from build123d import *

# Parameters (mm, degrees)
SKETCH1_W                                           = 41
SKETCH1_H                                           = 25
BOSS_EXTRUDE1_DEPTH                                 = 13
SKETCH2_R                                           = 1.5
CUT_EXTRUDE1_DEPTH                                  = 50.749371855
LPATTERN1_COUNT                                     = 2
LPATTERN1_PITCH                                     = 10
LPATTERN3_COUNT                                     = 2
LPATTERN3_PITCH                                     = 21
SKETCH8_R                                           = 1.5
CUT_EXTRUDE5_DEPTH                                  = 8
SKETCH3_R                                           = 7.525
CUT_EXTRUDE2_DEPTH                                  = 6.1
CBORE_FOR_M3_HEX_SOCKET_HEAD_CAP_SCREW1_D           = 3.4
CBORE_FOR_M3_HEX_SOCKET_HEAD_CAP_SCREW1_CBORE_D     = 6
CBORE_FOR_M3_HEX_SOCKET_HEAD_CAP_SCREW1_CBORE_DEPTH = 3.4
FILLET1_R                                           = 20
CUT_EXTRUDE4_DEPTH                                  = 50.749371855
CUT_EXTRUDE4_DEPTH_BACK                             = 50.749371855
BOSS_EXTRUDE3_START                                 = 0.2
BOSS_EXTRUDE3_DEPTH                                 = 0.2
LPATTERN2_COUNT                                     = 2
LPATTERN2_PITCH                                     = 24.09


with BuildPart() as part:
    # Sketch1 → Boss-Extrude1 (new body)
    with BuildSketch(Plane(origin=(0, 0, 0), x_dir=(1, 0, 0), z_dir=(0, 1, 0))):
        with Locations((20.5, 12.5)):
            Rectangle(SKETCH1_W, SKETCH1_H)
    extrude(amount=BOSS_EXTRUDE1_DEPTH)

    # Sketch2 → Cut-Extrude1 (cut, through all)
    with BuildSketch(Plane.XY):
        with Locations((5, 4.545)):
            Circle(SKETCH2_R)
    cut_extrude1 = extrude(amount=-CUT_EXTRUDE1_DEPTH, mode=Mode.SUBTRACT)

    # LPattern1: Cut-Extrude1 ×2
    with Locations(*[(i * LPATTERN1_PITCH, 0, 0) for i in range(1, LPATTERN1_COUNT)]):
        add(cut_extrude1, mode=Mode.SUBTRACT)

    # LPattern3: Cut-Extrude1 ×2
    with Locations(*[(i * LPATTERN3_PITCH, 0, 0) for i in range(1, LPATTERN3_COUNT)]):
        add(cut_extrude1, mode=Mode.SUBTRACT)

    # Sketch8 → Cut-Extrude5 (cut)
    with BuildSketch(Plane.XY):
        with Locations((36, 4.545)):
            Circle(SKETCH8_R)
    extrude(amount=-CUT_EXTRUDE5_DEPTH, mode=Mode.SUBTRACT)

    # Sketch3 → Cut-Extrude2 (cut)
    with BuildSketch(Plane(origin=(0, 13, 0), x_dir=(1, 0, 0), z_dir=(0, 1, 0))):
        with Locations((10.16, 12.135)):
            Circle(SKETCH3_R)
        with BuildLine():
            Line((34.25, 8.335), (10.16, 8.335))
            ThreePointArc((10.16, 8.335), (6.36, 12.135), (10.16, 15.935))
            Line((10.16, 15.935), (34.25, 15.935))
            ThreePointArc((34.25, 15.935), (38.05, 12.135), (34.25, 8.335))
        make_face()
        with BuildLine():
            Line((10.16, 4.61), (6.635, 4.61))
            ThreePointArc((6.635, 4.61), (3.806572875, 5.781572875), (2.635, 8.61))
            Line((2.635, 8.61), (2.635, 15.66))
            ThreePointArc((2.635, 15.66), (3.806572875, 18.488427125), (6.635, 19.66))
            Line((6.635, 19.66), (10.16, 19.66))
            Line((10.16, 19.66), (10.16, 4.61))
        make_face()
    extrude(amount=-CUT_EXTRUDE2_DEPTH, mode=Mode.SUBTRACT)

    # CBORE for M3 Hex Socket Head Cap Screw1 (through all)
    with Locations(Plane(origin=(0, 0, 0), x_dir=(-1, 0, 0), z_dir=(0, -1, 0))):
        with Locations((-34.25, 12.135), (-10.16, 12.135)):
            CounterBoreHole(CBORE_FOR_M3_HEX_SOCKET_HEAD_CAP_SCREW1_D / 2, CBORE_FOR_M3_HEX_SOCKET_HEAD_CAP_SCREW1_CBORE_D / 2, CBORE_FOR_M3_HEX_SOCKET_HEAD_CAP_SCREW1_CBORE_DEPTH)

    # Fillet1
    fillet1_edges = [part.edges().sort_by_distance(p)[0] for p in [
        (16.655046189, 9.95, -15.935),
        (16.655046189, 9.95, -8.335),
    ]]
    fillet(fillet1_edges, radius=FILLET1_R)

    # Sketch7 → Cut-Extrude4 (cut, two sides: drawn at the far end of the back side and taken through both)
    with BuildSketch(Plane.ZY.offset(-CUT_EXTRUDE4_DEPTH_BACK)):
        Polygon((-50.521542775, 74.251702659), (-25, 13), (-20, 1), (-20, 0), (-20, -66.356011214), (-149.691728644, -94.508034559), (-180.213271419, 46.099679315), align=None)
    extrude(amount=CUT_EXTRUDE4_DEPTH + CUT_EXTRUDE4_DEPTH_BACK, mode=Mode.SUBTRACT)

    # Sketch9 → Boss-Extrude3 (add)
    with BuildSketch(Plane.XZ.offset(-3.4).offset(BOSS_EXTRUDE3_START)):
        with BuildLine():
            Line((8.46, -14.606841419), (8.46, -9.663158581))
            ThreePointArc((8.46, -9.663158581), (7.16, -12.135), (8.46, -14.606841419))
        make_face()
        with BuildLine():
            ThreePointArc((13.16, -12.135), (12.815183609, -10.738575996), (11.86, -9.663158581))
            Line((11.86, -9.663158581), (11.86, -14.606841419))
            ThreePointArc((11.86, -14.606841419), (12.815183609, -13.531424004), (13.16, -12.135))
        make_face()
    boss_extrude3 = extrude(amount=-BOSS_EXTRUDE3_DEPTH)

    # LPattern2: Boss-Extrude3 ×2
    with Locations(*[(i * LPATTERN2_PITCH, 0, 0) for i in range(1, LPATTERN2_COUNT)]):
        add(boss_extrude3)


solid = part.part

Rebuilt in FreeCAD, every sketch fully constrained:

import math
import FreeCAD as App
import Part
import Sketcher

V = App.Vector
Q = App.Units.Quantity


def edges_at(feature, points):
    """Names of the edges that pass closest to the given points."""
    edges = feature.Shape.Edges
    near = lambda p: min(range(len(edges)), key=lambda i: edges[i].distToShape(Part.Vertex(*p))[0])
    return sorted({f"Edge{near(p) + 1}" for p in points})


def add_polygon(sketch, points):
    """Adds a closed chain of lines whose ends are joined by coincident constraints."""
    first, n = sketch.GeometryCount, len(points)
    for a, b in zip(points, points[1:] + points[:1]):
        sketch.addGeometry(Part.LineSegment(App.Vector(*a, 0), App.Vector(*b, 0)), False)
    for i in range(n):
        sketch.addConstraint(Sketcher.Constraint("Coincident", first + i, 2, first + (i + 1) % n, 1))

doc = App.newDocument("Part")
body = doc.addObject("PartDesign::Body", "Body")

# Sketch on XZ plane
sketch1 = body.newObject("Sketcher::SketchObject", "Sketch")
sketch1.AttachmentSupport = (doc.getObject("XZ_Plane"), [""])
sketch1.MapMode = "FlatFace"
add_polygon(sketch1, [(0, -25), (0, 0), (41, 0), (41, -25)])  # lines 0-3
sketch1.addConstraint([
    Sketcher.Constraint("Vertical", 0),
    Sketcher.Constraint("Horizontal", 1),
    Sketcher.Constraint("Vertical", 2),
    Sketcher.Constraint("Horizontal", 3),
    Sketcher.Constraint("Coincident", 0, 2, -1, 1),
    Sketcher.Constraint("DistanceX", 1, 1, 1, 2, Q("41 mm")),
    Sketcher.Constraint("DistanceY", 0, 1, 0, 2, Q("25 mm")),
])
pad1 = body.newObject("PartDesign::Pad", "Pad")
pad1.Profile = sketch1
pad1.Length = 13
pad1.Reversed = True

# Sketch on XY plane
sketch2 = body.newObject("Sketcher::SketchObject", "Sketch001")
sketch2.AttachmentSupport = (doc.getObject("XY_Plane"), [""])
sketch2.MapMode = "FlatFace"
sketch2.addGeometry(Part.Circle(V(5, 4.5, 0), V(0, 0, 1), 1.5), False)
sketch2.addConstraint([
    Sketcher.Constraint("Diameter", 0, Q("3 mm")),
    Sketcher.Constraint("DistanceX", -1, 1, 0, 3, Q("5 mm")),
    Sketcher.Constraint("DistanceY", -1, 1, 0, 3, Q("4.545 mm")),
])
pocket1 = body.newObject("PartDesign::Pocket", "Pocket")
pocket1.Profile = sketch2
pocket1.Type = "ThroughAll"
doc.recompute()

linearpattern = body.newObject("PartDesign::LinearPattern", "LinearPattern")
linearpattern.Originals = [pocket1]
linearpattern.Direction = (doc.getObject("X_Axis"), [""])
linearpattern.Mode = "offset"
linearpattern.Offset = 10
linearpattern.Occurrences = 2
body.Tip = linearpattern
doc.recompute()

linearpattern2 = body.newObject("PartDesign::LinearPattern", "LinearPattern001")
linearpattern2.Originals = [pocket1]
linearpattern2.Direction = (doc.getObject("X_Axis"), [""])
linearpattern2.Mode = "offset"
linearpattern2.Offset = 21
linearpattern2.Occurrences = 2
body.Tip = linearpattern2

# Sketch on XY plane
sketch3 = body.newObject("Sketcher::SketchObject", "Sketch002")
sketch3.AttachmentSupport = (doc.getObject("XY_Plane"), [""])
sketch3.MapMode = "FlatFace"
sketch3.addGeometry(Part.Circle(V(36, 4.5, 0), V(0, 0, 1), 1.5), False)
sketch3.addConstraint([
    Sketcher.Constraint("Diameter", 0, Q("3 mm")),
    Sketcher.Constraint("DistanceX", -1, 1, 0, 3, Q("36 mm")),
    Sketcher.Constraint("DistanceY", -1, 1, 0, 3, Q("4.545 mm")),
])
pocket2 = body.newObject("PartDesign::Pocket", "Pocket001")
pocket2.Profile = sketch3
pocket2.Length = 8

# Sketch on XZ plane
sketch4 = body.newObject("Sketcher::SketchObject", "Sketch003")
sketch4.AttachmentSupport = (doc.getObject("XZ_Plane"), [""])
sketch4.MapMode = "FlatFace"
sketch4.AttachmentOffset = App.Placement(V(0, 0, -13), App.Rotation())
sketch4.addGeometry([
    Part.ArcOfCircle(Part.Circle(V(34.2, -12.1, 0), V(0, 0, 1), 3.8), math.radians(-90), math.radians(90)),  # 0
    Part.LineSegment(V(34.2, -15.9, 0), V(16.7, -15.9, 0)),  # 1
    Part.ArcOfCircle(Part.Circle(V(10.2, -12.1, 0), V(0, 0, 1), 7.5), math.radians(-90), math.radians(-30)),  # 2
    Part.LineSegment(V(10.2, -19.7, 0), V(6.6, -19.7, 0)),  # 3
    Part.ArcOfCircle(Part.Circle(V(6.6, -15.7, 0), V(0, 0, 1), 4), math.radians(180), math.radians(270)),  # 4
    Part.LineSegment(V(2.6, -15.7, 0), V(2.6, -8.6, 0)),  # 5
    Part.ArcOfCircle(Part.Circle(V(6.6, -8.6, 0), V(0, 0, 1), 4), math.radians(90), math.radians(180)),  # 6
    Part.LineSegment(V(6.6, -4.6, 0), V(10.2, -4.6, 0)),  # 7
    Part.ArcOfCircle(Part.Circle(V(10.2, -12.1, 0), V(0, 0, 1), 7.5), math.radians(30), math.radians(90)),  # 8
    Part.LineSegment(V(16.7, -8.3, 0), V(34.2, -8.3, 0)),  # 9
], False)
sketch4.addConstraint([
    Sketcher.Constraint("Tangent", 0, 1, 1, 1),
    Sketcher.Constraint("Coincident", 1, 2, 2, 2),
    Sketcher.Constraint("Tangent", 2, 1, 3, 1),
    Sketcher.Constraint("Tangent", 3, 2, 4, 2),
    Sketcher.Constraint("Tangent", 4, 1, 5, 1),
    Sketcher.Constraint("Tangent", 5, 2, 6, 2),
    Sketcher.Constraint("Tangent", 6, 1, 7, 1),
    Sketcher.Constraint("Tangent", 7, 2, 8, 2),
    Sketcher.Constraint("Coincident", 8, 1, 9, 1),
    Sketcher.Constraint("Tangent", 9, 2, 0, 2),
    Sketcher.Constraint("Horizontal", 1),
    Sketcher.Constraint("Horizontal", 3),
    Sketcher.Constraint("Vertical", 5),
    Sketcher.Constraint("Horizontal", 7),
    Sketcher.Constraint("Horizontal", 9),
    Sketcher.Constraint("Coincident", 8, 3, 2, 3),
    Sketcher.Constraint("Equal", 4, 6),
    Sketcher.Constraint("Equal", 2, 8),
    Sketcher.Constraint("Horizontal", 0, 3, 2, 3),
    Sketcher.Constraint("Radius", 4, Q("4 mm")),
    Sketcher.Constraint("Radius", 0, Q("3.8 mm")),
    Sketcher.Constraint("Radius", 2, Q("7.525 mm")),
    Sketcher.Constraint("DistanceX", 3, 2, 3, 1, Q("3.525 mm")),
    Sketcher.Constraint("DistanceX", -1, 1, 0, 3, Q("34.25 mm")),
    Sketcher.Constraint("DistanceX", -1, 1, 2, 3, Q("10.16 mm")),
    Sketcher.Constraint("DistanceY", 4, 3, -1, 1, Q("15.66 mm")),
])
pocket3 = body.newObject("PartDesign::Pocket", "Pocket002")
pocket3.Profile = sketch4
pocket3.Length = 6.1
pocket3.Reversed = True

# Sketch on XZ plane
sketch5 = body.newObject("Sketcher::SketchObject", "Sketch004")
sketch5.AttachmentSupport = (doc.getObject("XZ_Plane"), [""])
sketch5.MapMode = "FlatFace"
sketch5.addGeometry([
    Part.Circle(V(34.2, -12.1, 0), V(0, 0, 1), 1.7),
    Part.Circle(V(10.2, -12.1, 0), V(0, 0, 1), 1.7),
], False)
sketch5.addConstraint([
    Sketcher.Constraint("Equal", 0, 1),
    Sketcher.Constraint("Horizontal", 0, 3, 1, 3),
    Sketcher.Constraint("Diameter", 0, Q("3.4 mm")),
    Sketcher.Constraint("DistanceX", -1, 1, 0, 3, Q("34.25 mm")),
    Sketcher.Constraint("DistanceX", -1, 1, 1, 3, Q("10.16 mm")),
    Sketcher.Constraint("DistanceY", 0, 3, -1, 1, Q("12.135 mm")),
])
doc.recompute()
hole = body.newObject("PartDesign::Hole", "Hole")
hole.Profile = sketch5
hole.ThreadType = "None"
hole.Diameter = 3.4
hole.DepthType = "ThroughAll"
hole.HoleCutType = "Counterbore"
hole.HoleCutDiameter = 6
hole.HoleCutDepth = 3.4
doc.recompute()

fillet = body.newObject("PartDesign::Fillet", "Fillet")
fillet.Base = (hole, edges_at(hole, [(16.655, 9.95, -15.935), (16.655, 9.95, -8.335)]))
fillet.Radius = 20

# Sketch on YZ plane
sketch6 = body.newObject("Sketcher::SketchObject", "Sketch005")
sketch6.AttachmentSupport = (doc.getObject("YZ_Plane"), [""])
sketch6.MapMode = "FlatFace"
add_polygon(sketch6, [(13, -25), (74, -51), (46, -180), (-95, -150), (-66, -20), (1, -20)])  # lines 0-5
sketch6.addConstraint([
    Sketcher.Constraint("Horizontal", 4),
    Sketcher.Constraint("Perpendicular", 1, 2),
    Sketcher.Constraint("Perpendicular", 2, 3),
    Sketcher.Constraint("Parallel", 0, 5),
    Sketcher.Constraint("Equal", 1, 3),
    Sketcher.Constraint("Distance", 5, Q("13 mm")),
    Sketcher.Constraint("DistanceY", 3, 2, -1, 1, Q("20 mm")),
    Sketcher.Constraint("DistanceX", -1, 1, 4, 2, Q("1 mm")),
    Sketcher.Constraint("DistanceX", -1, 1, 5, 2, Q("13 mm")),
    Sketcher.Constraint("DistanceX", 4, 1, 4, 2, Q("67.356011 mm")),
    Sketcher.Constraint("Distance", 0, Q("66.356011 mm")),
    Sketcher.Constraint("DistanceX", -1, 1, 1, 2, Q("46.099679 mm")),
])
pocket4 = body.newObject("PartDesign::Pocket", "Pocket003")
pocket4.Profile = sketch6
pocket4.Type = "ThroughAll"
pocket4.Midplane = True

# Sketch on XZ plane
sketch7 = body.newObject("Sketcher::SketchObject", "Sketch006")
sketch7.AttachmentSupport = (doc.getObject("XZ_Plane"), [""])
sketch7.MapMode = "FlatFace"
sketch7.AttachmentOffset = App.Placement(V(0, 0, -3.2), App.Rotation())
sketch7.addGeometry([
    Part.LineSegment(V(8.5, -14.6, 0), V(8.5, -9.7, 0)),  # 0
    Part.ArcOfCircle(Part.Circle(V(10.2, -12.1, 0), V(0, 0, 1), 3), math.radians(125), math.radians(235)),  # 1
    Part.ArcOfCircle(Part.Circle(V(10.2, -12.1, 0), V(0, 0, 1), 3), math.radians(0), math.radians(55)),  # 2
    Part.LineSegment(V(11.9, -9.7, 0), V(11.9, -14.6, 0)),  # 3
    Part.ArcOfCircle(Part.Circle(V(10.2, -12.1, 0), V(0, 0, 1), 3), math.radians(-55), math.radians(0)),  # 4
], False)
sketch7.addConstraint([
    Sketcher.Constraint("Coincident", 0, 1, 1, 2),
    Sketcher.Constraint("Coincident", 1, 1, 0, 2),
    Sketcher.Constraint("Coincident", 2, 2, 3, 1),
    Sketcher.Constraint("Coincident", 3, 2, 4, 1),
    Sketcher.Constraint("Tangent", 4, 2, 2, 1),
    Sketcher.Constraint("Vertical", 0),
    Sketcher.Constraint("Vertical", 3),
    Sketcher.Constraint("Coincident", 2, 3, 1, 3),
    Sketcher.Constraint("Equal", 1, 2),
    Sketcher.Constraint("Equal", 2, 4),
    Sketcher.Constraint("Horizontal", 1, 1, 2, 2),
    Sketcher.Constraint("Horizontal", 2, 3, 4, 2),
    Sketcher.Constraint("Radius", 1, Q("3 mm")),
    Sketcher.Constraint("DistanceX", 0, 1, 2, 3, Q("1.7 mm")),
    Sketcher.Constraint("DistanceX", -1, 1, 1, 3, Q("10.16 mm")),
    Sketcher.Constraint("DistanceY", 1, 3, -1, 1, Q("12.135 mm")),
])
pad2 = body.newObject("PartDesign::Pad", "Pad001")
pad2.Profile = sketch7
pad2.Length = 0.2
pad2.Reversed = True
doc.recompute()

linearpattern3 = body.newObject("PartDesign::LinearPattern", "LinearPattern002")
linearpattern3.Originals = [pad2]
linearpattern3.Direction = (doc.getObject("X_Axis"), [""])
linearpattern3.Mode = "offset"
linearpattern3.Offset = 24.09
linearpattern3.Occurrences = 2
body.Tip = linearpattern3

doc.recompute()
